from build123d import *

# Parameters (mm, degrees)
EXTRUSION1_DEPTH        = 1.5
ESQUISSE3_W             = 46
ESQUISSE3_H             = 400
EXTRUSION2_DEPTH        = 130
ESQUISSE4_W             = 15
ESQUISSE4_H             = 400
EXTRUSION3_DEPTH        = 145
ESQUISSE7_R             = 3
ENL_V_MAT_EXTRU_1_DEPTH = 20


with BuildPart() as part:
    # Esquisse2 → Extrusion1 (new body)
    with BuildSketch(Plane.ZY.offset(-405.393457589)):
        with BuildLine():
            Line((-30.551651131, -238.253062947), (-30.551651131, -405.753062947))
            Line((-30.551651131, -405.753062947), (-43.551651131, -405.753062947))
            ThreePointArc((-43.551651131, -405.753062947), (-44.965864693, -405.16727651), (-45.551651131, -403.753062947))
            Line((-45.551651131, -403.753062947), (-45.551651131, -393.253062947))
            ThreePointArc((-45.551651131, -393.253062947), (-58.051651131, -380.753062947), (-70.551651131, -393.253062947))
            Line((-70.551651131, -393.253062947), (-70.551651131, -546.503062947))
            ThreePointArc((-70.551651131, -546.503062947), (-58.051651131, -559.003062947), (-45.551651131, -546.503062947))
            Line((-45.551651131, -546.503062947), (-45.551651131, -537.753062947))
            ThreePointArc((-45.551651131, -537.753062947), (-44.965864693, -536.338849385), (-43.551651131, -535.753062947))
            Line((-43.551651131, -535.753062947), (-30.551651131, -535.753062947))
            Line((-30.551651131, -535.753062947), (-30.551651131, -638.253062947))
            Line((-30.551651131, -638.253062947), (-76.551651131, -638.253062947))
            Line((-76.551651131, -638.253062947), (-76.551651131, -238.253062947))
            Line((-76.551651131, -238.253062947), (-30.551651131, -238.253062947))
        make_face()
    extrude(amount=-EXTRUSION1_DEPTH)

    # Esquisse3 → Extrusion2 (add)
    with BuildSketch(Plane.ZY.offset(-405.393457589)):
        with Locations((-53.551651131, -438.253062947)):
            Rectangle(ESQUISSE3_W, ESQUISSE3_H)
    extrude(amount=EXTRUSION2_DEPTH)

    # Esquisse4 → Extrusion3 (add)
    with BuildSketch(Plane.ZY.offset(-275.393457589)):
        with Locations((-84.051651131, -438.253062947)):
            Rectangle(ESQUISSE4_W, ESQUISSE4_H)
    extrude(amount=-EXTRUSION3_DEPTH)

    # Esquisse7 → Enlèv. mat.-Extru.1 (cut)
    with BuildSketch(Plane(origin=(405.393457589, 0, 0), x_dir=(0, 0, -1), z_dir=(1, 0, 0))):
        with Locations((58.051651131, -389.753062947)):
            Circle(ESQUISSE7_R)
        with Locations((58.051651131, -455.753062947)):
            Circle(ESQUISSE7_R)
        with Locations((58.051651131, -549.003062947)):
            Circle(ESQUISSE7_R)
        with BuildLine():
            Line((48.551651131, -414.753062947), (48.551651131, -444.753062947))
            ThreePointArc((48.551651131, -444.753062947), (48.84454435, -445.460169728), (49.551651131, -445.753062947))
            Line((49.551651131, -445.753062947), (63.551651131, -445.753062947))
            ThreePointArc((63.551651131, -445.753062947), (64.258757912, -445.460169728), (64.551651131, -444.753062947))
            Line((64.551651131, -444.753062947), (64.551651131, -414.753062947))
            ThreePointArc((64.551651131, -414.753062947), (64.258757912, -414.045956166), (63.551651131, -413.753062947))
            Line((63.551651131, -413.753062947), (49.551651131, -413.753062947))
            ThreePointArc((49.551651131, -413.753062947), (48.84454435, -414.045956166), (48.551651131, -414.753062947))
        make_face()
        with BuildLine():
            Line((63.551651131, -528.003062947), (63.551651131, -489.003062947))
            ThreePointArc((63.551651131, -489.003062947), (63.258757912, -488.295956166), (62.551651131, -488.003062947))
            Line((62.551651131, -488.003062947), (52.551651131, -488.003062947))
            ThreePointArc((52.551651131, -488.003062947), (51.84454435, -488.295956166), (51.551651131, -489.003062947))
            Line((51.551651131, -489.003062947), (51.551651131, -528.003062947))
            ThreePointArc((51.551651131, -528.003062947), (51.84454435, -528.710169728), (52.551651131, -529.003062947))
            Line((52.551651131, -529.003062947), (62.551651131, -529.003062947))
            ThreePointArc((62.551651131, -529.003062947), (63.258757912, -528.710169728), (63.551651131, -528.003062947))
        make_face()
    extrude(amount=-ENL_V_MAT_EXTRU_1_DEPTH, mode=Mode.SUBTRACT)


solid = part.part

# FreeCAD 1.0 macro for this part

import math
import FreeCAD as App
import Part
import Sketcher
Q = App.Units.Quantity


def add_polygon(sketch, points):
    """Adds a closed chain of lines whose ends are joined by coincident constraints."""
    first, n = sketch.GeometryCount, len(points)
    for a, b in zip(points, points[1:] + points[:1]):
        sketch.addGeometry(Part.LineSegment(App.Vector(*a, 0), App.Vector(*b, 0)), False)
    for i in range(n):
        sketch.addConstraint(Sketcher.Constraint("Coincident", first + i, 2, first + (i + 1) % n, 1))

doc = App.newDocument("Part")
body = doc.addObject("PartDesign::Body", "Body")

# Sketch on YZ plane
sketch1 = body.newObject("Sketcher::SketchObject", "Sketch")
sketch1.AttachmentSupport = (doc.getObject("YZ_Plane"), [""])
sketch1.MapMode = "FlatFace"
sketch1.AttachmentOffset = App.Placement(App.Vector(0, 0, 405.393458), App.Rotation())
sketch1.addGeometry([
    Part.LineSegment(App.Vector(-405.8, -30.6, 0), App.Vector(-238.3, -30.6, 0)),  # 0
    Part.LineSegment(App.Vector(-238.3, -30.6, 0), App.Vector(-238.3, -76.6, 0)),  # 1
    Part.LineSegment(App.Vector(-238.3, -76.6, 0), App.Vector(-638.3, -76.6, 0)),  # 2
    Part.LineSegment(App.Vector(-638.3, -76.6, 0), App.Vector(-638.3, -30.6, 0)),  # 3
    Part.LineSegment(App.Vector(-638.3, -30.6, 0), App.Vector(-535.8, -30.6, 0)),  # 4
    Part.LineSegment(App.Vector(-535.8, -30.6, 0), App.Vector(-535.8, -43.6, 0)),  # 5
    Part.ArcOfCircle(Part.Circle(App.Vector(-537.8, -43.6, 0), App.Vector(0, 0, 1), 2), math.radians(-90), math.radians(0)),  # 6
    Part.LineSegment(App.Vector(-537.8, -45.6, 0), App.Vector(-546.5, -45.6, 0)),  # 7
    Part.ArcOfCircle(Part.Circle(App.Vector(-546.5, -58.1, 0), App.Vector(0, 0, 1), 12.5), math.radians(90), math.radians(270)),  # 8
    Part.LineSegment(App.Vector(-546.5, -70.6, 0), App.Vector(-393.3, -70.6, 0)),  # 9
    Part.ArcOfCircle(Part.Circle(App.Vector(-393.3, -58.1, 0), App.Vector(0, 0, 1), 12.5), math.radians(-90), math.radians(90)),  # 10
    Part.LineSegment(App.Vector(-393.3, -45.6, 0), App.Vector(-403.8, -45.6, 0)),  # 11
    Part.ArcOfCircle(Part.Circle(App.Vector(-403.8, -43.6, 0), App.Vector(0, 0, 1), 2), math.radians(180), math.radians(270)),  # 12
    Part.LineSegment(App.Vector(-405.8, -43.6, 0), App.Vector(-405.8, -30.6, 0)),  # 13
], False)
sketch1.addConstraint([
    Sketcher.Constraint("Coincident", 0, 2, 1, 1),
    Sketcher.Constraint("Coincident", 1, 2, 2, 1),
    Sketcher.Constraint("Coincident", 2, 2, 3, 1),
    Sketcher.Constraint("Coincident", 3, 2, 4, 1),
    Sketcher.Constraint("Coincident", 4, 2, 5, 1),
    Sketcher.Constraint("Tangent", 5, 2, 6, 2),
    Sketcher.Constraint("Tangent", 6, 1, 7, 1),
    Sketcher.Constraint("Tangent", 7, 2, 8, 1),
    Sketcher.Constraint("Tangent", 8, 2, 9, 1),
    Sketcher.Constraint("Tangent", 9, 2, 10, 1),
    Sketcher.Constraint("Tangent", 10, 2, 11, 1),
    Sketcher.Constraint("Tangent", 11, 2, 12, 2),
    Sketcher.Constraint("Tangent", 12, 1, 13, 1),
    Sketcher.Constraint("Coincident", 13, 2, 0, 1),
    Sketcher.Constraint("Horizontal", 0),
    Sketcher.Constraint("Vertical", 1),
    Sketcher.Constraint("Horizontal", 2),
    Sketcher.Constraint("Vertical", 3),
    Sketcher.Constraint("Horizontal", 4),
    Sketcher.Constraint("Vertical", 5),
    Sketcher.Constraint("Horizontal", 7),
    Sketcher.Constraint("Horizontal", 9),
    Sketcher.Constraint("Horizontal", 11),
    Sketcher.Constraint("Vertical", 13),
    Sketcher.Constraint("Equal", 8, 10),
    Sketcher.Constraint("Equal", 6, 12),
    Sketcher.Constraint("Horizontal", 0, 2, 3, 2),
    Sketcher.Constraint("Radius", 6, Q("2 mm")),
    Sketcher.Constraint("Radius", 8, Q("12.5 mm")),
    Sketcher.Constraint("DistanceX", 2, 2, 2, 1, Q("400 mm")),
    Sketcher.Constraint("DistanceY", 1, 2, 1, 1, Q("46 mm")),
    Sketcher.Constraint("DistanceY", 5, 2, 5, 1, Q("13 mm")),
    Sketcher.Constraint("DistanceX", 0, 1, 0, 2, Q("167.5 mm")),
    Sketcher.Constraint("DistanceX", 4, 1, 4, 2, Q("102.5 mm")),
    Sketcher.Constraint("DistanceX", 11, 2, 11, 1, Q("10.5 mm")),
    Sketcher.Constraint("DistanceX", 7, 2, 7, 1, Q("8.75 mm")),
    Sketcher.Constraint("DistanceY", 6, 3, -1, 1, Q("43.551651 mm")),
    Sketcher.Constraint("DistanceX", 6, 3, -1, 1, Q("537.753063 mm")),
])
pad1 = body.newObject("PartDesign::Pad", "Pad")
pad1.Profile = sketch1
pad1.Length = 1.5

# Sketch on YZ plane
sketch2 = body.newObject("Sketcher::SketchObject", "Sketch001")
sketch2.AttachmentSupport = (doc.getObject("YZ_Plane"), [""])
sketch2.MapMode = "FlatFace"
sketch2.AttachmentOffset = App.Placement(App.Vector(0, 0, 405.393458), App.Rotation())
add_polygon(sketch2, [(-238, -77), (-638, -77), (-638, -31), (-238, -31)])  # lines 0-3
sketch2.addConstraint([
    Sketcher.Constraint("Horizontal", 0),
    Sketcher.Constraint("Vertical", 1),
    Sketcher.Constraint("Horizontal", 2),
    Sketcher.Constraint("Vertical", 3),
    Sketcher.Constraint("DistanceX", 0, 2, 0, 1, Q("400 mm")),
    Sketcher.Constraint("DistanceY", 1, 1, 1, 2, Q("46 mm")),
    Sketcher.Constraint("DistanceY", 0, 2, -1, 1, Q("76.551651 mm")),
    Sketcher.Constraint("DistanceX", 0, 2, -1, 1, Q("638.253063 mm")),
])
pad2 = body.newObject("PartDesign::Pad", "Pad001")
pad2.Profile = sketch2
pad2.Length = 130
pad2.Reversed = True

# Sketch on YZ plane
sketch3 = body.newObject("Sketcher::SketchObject", "Sketch002")
sketch3.AttachmentSupport = (doc.getObject("YZ_Plane"), [""])
sketch3.MapMode = "FlatFace"
sketch3.AttachmentOffset = App.Placement(App.Vector(0, 0, 275.393458), App.Rotation())
add_polygon(sketch3, [(-238, -92), (-638, -92), (-638, -77), (-238, -77)])  # lines 0-3
sketch3.addConstraint([
    Sketcher.Constraint("Horizontal", 0),
    Sketcher.Constraint("Vertical", 1),
    Sketcher.Constraint("Horizontal", 2),
    Sketcher.Constraint("Vertical", 3),
    Sketcher.Constraint("DistanceX", 0, 2, 0, 1, Q("400 mm")),
    Sketcher.Constraint("DistanceY", 1, 1, 1, 2, Q("15 mm")),
    Sketcher.Constraint("DistanceY", 0, 2, -1, 1, Q("91.551651 mm")),
    Sketcher.Constraint("DistanceX", 0, 2, -1, 1, Q("638.253063 mm")),
])
pad3 = body.newObject("PartDesign::Pad", "Pad002")
pad3.Profile = sketch3
pad3.Length = 145

# Sketch on YZ plane
sketch4 = body.newObject("Sketcher::SketchObject", "Sketch003")
sketch4.AttachmentSupport = (doc.getObject("YZ_Plane"), [""])
sketch4.MapMode = "FlatFace"
sketch4.AttachmentOffset = App.Placement(App.Vector(0, 0, 405.393458), App.Rotation())
sketch4.addGeometry([
    Part.Circle(App.Vector(-389.8, -58.1, 0), App.Vector(0, 0, 1), 3),  # 0
    Part.Circle(App.Vector(-455.8, -58.1, 0), App.Vector(0, 0, 1), 3),  # 1
    Part.Circle(App.Vector(-549, -58.1, 0), App.Vector(0, 0, 1), 3),  # 2
    Part.LineSegment(App.Vector(-414.8, -48.6, 0), App.Vector(-444.8, -48.6, 0)),  # 3
    Part.ArcOfCircle(Part.Circle(App.Vector(-444.8, -49.6, 0), App.Vector(0, 0, 1), 1), math.radians(90), math.radians(180)),  # 4
    Part.LineSegment(App.Vector(-445.8, -49.6, 0), App.Vector(-445.8, -63.6, 0)),  # 5
    Part.ArcOfCircle(Part.Circle(App.Vector(-444.8, -63.6, 0), App.Vector(0, 0, 1), 1), math.radians(-180), math.radians(-90)),  # 6
    Part.LineSegment(App.Vector(-444.8, -64.6, 0), App.Vector(-414.8, -64.6, 0)),  # 7
    Part.ArcOfCircle(Part.Circle(App.Vector(-414.8, -63.6, 0), App.Vector(0, 0, 1), 1), math.radians(-90), math.radians(0)),  # 8
    Part.LineSegment(App.Vector(-413.8, -63.6, 0), App.Vector(-413.8, -49.6, 0)),  # 9
    Part.ArcOfCircle(Part.Circle(App.Vector(-414.8, -49.6, 0), App.Vector(0, 0, 1), 1), math.radians(0), math.radians(90)),  # 10
    Part.LineSegment(App.Vector(-528, -63.6, 0), App.Vector(-489, -63.6, 0)),  # 11
    Part.ArcOfCircle(Part.Circle(App.Vector(-489, -62.6, 0), App.Vector(0, 0, 1), 1), math.radians(-90), math.radians(0)),  # 12
    Part.LineSegment(App.Vector(-488, -62.6, 0), App.Vector(-488, -52.6, 0)),  # 13
    Part.ArcOfCircle(Part.Circle(App.Vector(-489, -52.6, 0), App.Vector(0, 0, 1), 1), math.radians(0), math.radians(90)),  # 14
    Part.LineSegment(App.Vector(-489, -51.6, 0), App.Vector(-528, -51.6, 0)),  # 15
    Part.ArcOfCircle(Part.Circle(App.Vector(-528, -52.6, 0), App.Vector(0, 0, 1), 1), math.radians(90), math.radians(180)),  # 16
    Part.LineSegment(App.Vector(-529, -52.6, 0), App.Vector(-529, -62.6, 0)),  # 17
    Part.ArcOfCircle(Part.Circle(App.Vector(-528, -62.6, 0), App.Vector(0, 0, 1), 1), math.radians(-180), math.radians(-90)),  # 18
], False)
sketch4.addConstraint([
    Sketcher.Constraint("Tangent", 3, 2, 4, 1),
    Sketcher.Constraint("Tangent", 4, 2, 5, 1),
    Sketcher.Constraint("Tangent", 5, 2, 6, 1),
    Sketcher.Constraint("Tangent", 6, 2, 7, 1),
    Sketcher.Constraint("Tangent", 7, 2, 8, 1),
    Sketcher.Constraint("Tangent", 8, 2, 9, 1),
    Sketcher.Constraint("Tangent", 9, 2, 10, 1),
    Sketcher.Constraint("Tangent", 10, 2, 3, 1),
    Sketcher.Constraint("Tangent", 11, 2, 12, 1),
    Sketcher.Constraint("Tangent", 12, 2, 13, 1),
    Sketcher.Constraint("Tangent", 13, 2, 14, 1),
    Sketcher.Constraint("Tangent", 14, 2, 15, 1),
    Sketcher.Constraint("Tangent", 15, 2, 16, 1),
    Sketcher.Constraint("Tangent", 16, 2, 17, 1),
    Sketcher.Constraint("Tangent", 17, 2, 18, 1),
    Sketcher.Constraint("Tangent", 18, 2, 11, 1),
    Sketcher.Constraint("Horizontal", 3),
    Sketcher.Constraint("Vertical", 5),
    Sketcher.Constraint("Horizontal", 7),
    Sketcher.Constraint("Vertical", 9),
    Sketcher.Constraint("Horizontal", 11),
    Sketcher.Constraint("Vertical", 13),
    Sketcher.Constraint("Horizontal", 15),
    Sketcher.Constraint("Vertical", 17),
    Sketcher.Constraint("Equal", 0, 1),
    Sketcher.Constraint("Equal", 1, 2),
    Sketcher.Constraint("Equal", 4, 6),
    Sketcher.Constraint("Equal", 6, 8),
    Sketcher.Constraint("Equal", 8, 10),
    Sketcher.Constraint("Equal", 10, 12),
    Sketcher.Constraint("Equal", 12, 14),
    Sketcher.Constraint("Equal", 14, 16),
    Sketcher.Constraint("Equal", 16, 18),
    Sketcher.Constraint("Horizontal", 0, 3, 1, 3),
    Sketcher.Constraint("Horizontal", 1, 3, 2, 3),
    Sketcher.Constraint("Horizontal", 8, 2, 11, 2),
    Sketcher.Constraint("Diameter", 0, Q("6 mm")),
    Sketcher.Constraint("Radius", 4, Q("1 mm")),
    Sketcher.Constraint("DistanceX", 3, 2, 3, 1, Q("30 mm")),
    Sketcher.Constraint("DistanceX", 11, 1, 11, 2, Q("39 mm")),
    Sketcher.Constraint("DistanceY", 5, 2, 5, 1, Q("14 mm")),
    Sketcher.Constraint("DistanceY", 13, 1, 13, 2, Q("10 mm")),
    Sketcher.Constraint("DistanceX", 1, 3, 0, 3, Q("66 mm")),
    Sketcher.Constraint("DistanceX", 1, 3, 4, 3, Q("11 mm")),
    Sketcher.Constraint("DistanceX", 2, 3, 12, 3, Q("60 mm")),
    Sketcher.Constraint("DistanceY", 1, 3, 4, 3, Q("8.5 mm")),
    Sketcher.Constraint("DistanceX", 2, 3, 1, 3, Q("93.25 mm")),
    Sketcher.Constraint("DistanceY", 0, 3, -1, 1, Q("58.051651 mm")),
    Sketcher.Constraint("DistanceX", 0, 3, -1, 1, Q("389.753063 mm")),
])
pocket1 = body.newObject("PartDesign::Pocket", "Pocket")
pocket1.Profile = sketch4
pocket1.Length = 20

doc.recompute()
